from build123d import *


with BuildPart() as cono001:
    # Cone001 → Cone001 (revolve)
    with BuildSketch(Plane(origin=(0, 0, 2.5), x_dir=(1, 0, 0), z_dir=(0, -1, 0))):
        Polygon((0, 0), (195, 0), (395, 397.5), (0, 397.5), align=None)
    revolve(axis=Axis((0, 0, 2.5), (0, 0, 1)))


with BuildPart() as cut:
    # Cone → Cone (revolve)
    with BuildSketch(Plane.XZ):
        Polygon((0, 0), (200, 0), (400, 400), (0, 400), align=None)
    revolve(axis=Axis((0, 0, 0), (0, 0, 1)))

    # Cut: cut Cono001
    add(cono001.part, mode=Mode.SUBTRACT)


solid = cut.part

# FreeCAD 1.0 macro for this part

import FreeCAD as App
import Part
import Sketcher
Q = App.Units.Quantity


def add_polygon(sketch, points):
    """Adds a closed chain of lines whose ends are joined by coincident constraints."""
    first, n = sketch.GeometryCount, len(points)
    for a, b in zip(points, points[1:] + points[:1]):
        sketch.addGeometry(Part.LineSegment(App.Vector(*a, 0), App.Vector(*b, 0)), False)
    for i in range(n):
        sketch.addConstraint(Sketcher.Constraint("Coincident", first + i, 2, first + (i + 1) % n, 1))

doc = App.newDocument("Part")
body = doc.addObject("PartDesign::Body", "Body")

# Sketch on XZ plane
sketch1 = body.newObject("Sketcher::SketchObject", "Sketch")
sketch1.AttachmentSupport = (doc.getObject("XZ_Plane"), [""])
sketch1.MapMode = "FlatFace"
add_polygon(sketch1, [(0, 2), (195, 2), (395, 400), (0, 400)])  # lines 0-3
sketch1.addConstraint(Sketcher.Constraint("Horizontal", 0))
sketch1.addConstraint(Sketcher.Constraint("Horizontal", 2))
sketch1.addConstraint(Sketcher.Constraint("Vertical", 3))
sketch1.addConstraint(Sketcher.Constraint("PointOnObject", 2, 2, -2))
sketch1.addConstraint(Sketcher.Constraint("DistanceX", 0, 1, 0, 2, Q("195 mm")))
sketch1.addConstraint(Sketcher.Constraint("DistanceX", 2, 2, 2, 1, Q("395 mm")))
sketch1.addConstraint(Sketcher.Constraint("DistanceY", 3, 2, 3, 1, Q("397.5 mm")))
sketch1.addConstraint(Sketcher.Constraint("DistanceY", -1, 1, 1, 2, Q("400 mm")))
revolution = body.newObject("PartDesign::Revolution", "Revolution")
revolution.Profile = sketch1
revolution.ReferenceAxis = (sketch1, ["V_Axis"])
revolution.Angle = 360
body2 = doc.addObject("PartDesign::Body", "Body001")

# Sketch on XZ plane
sketch2 = body2.newObject("Sketcher::SketchObject", "Sketch001")
sketch2.AttachmentSupport = (doc.getObject("XZ_Plane001"), [""])
sketch2.MapMode = "FlatFace"
add_polygon(sketch2, [(0, 0), (200, 0), (400, 400), (0, 400)])  # lines 0-3
sketch2.addConstraint(Sketcher.Constraint("Horizontal", 0))
sketch2.addConstraint(Sketcher.Constraint("Horizontal", 2))
sketch2.addConstraint(Sketcher.Constraint("Vertical", 3))
sketch2.addConstraint(Sketcher.Constraint("Coincident", 3, 2, -1, 1))
sketch2.addConstraint(Sketcher.Constraint("Equal", 2, 3))
sketch2.addConstraint(Sketcher.Constraint("DistanceX", 0, 1, 0, 2, Q("200 mm")))
sketch2.addConstraint(Sketcher.Constraint("DistanceX", 2, 2, 2, 1, Q("400 mm")))
revolution2 = body2.newObject("PartDesign::Revolution", "Revolution001")
revolution2.Profile = sketch2
revolution2.ReferenceAxis = (sketch2, ["V_Axis"])
revolution2.Angle = 360
doc.recompute()

boolean = body2.newObject("PartDesign::Boolean", "Boolean")
boolean.Type = "Cut"
boolean.addObjects([body])

doc.recompute()
